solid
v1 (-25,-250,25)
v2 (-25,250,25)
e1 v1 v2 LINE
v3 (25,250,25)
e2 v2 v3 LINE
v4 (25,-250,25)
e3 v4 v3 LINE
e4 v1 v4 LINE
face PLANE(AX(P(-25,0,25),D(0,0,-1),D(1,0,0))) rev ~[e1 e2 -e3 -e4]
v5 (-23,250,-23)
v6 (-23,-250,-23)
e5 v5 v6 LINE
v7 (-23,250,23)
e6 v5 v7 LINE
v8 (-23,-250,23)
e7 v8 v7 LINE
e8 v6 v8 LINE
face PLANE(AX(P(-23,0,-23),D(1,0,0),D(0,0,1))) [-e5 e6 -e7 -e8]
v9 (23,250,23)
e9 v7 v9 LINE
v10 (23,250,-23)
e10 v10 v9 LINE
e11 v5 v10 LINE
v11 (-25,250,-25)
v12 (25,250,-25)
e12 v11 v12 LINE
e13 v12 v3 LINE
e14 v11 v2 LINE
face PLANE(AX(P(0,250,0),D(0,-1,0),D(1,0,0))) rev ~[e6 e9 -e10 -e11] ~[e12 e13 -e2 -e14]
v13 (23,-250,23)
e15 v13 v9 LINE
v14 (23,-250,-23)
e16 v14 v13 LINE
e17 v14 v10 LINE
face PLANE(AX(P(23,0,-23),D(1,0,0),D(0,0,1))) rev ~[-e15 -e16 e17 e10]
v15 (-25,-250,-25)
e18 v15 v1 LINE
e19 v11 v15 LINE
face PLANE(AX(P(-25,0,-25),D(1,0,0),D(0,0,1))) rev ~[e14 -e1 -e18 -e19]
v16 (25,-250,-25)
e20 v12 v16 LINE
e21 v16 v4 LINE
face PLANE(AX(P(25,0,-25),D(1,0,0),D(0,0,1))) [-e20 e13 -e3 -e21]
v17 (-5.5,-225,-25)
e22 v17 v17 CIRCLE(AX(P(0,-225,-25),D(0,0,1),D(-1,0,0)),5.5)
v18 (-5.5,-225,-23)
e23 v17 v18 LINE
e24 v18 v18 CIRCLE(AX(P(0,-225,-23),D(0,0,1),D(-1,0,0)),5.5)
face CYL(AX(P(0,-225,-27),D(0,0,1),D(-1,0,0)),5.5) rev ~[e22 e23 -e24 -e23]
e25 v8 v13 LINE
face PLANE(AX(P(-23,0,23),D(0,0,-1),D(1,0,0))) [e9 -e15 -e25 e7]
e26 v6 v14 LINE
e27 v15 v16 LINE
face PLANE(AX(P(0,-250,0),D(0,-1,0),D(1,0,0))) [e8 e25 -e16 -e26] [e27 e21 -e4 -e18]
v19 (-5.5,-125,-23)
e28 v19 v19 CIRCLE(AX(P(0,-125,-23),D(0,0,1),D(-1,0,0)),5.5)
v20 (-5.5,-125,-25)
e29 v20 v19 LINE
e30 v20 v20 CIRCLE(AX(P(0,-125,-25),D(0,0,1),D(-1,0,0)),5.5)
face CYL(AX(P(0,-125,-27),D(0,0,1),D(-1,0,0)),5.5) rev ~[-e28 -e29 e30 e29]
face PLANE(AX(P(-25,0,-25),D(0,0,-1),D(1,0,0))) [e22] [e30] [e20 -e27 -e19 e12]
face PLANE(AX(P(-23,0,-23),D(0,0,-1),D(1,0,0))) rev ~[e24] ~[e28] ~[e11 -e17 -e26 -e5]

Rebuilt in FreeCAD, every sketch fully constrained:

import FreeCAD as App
import Part
import Sketcher

V = App.Vector

doc = App.newDocument("Part")
body = doc.addObject("PartDesign::Body", "Body")

# Sketch on XZ plane
sketch1 = body.newObject("Sketcher::SketchObject", "Sketch")
sketch1.AttachmentSupport = (doc.getObject("XZ_Plane"), [""])
sketch1.MapMode = "FlatFace"
sketch1.addGeometry(Part.LineSegment(V(-25, 25, 0), V(-25, -25, 0)), False)
sketch1.addGeometry(Part.LineSegment(V(-25, -25, 0), V(25, -25, 0)), False)
sketch1.addGeometry(Part.LineSegment(V(25, -25, 0), V(25, 25, 0)), False)
sketch1.addGeometry(Part.LineSegment(V(25, 25, 0), V(-25, 25, 0)), False)
sketch1.addGeometry(Part.LineSegment(V(23, -23, 0), V(-23, -23, 0)), False)
sketch1.addGeometry(Part.LineSegment(V(-23, -23, 0), V(-23, 23, 0)), False)
sketch1.addGeometry(Part.LineSegment(V(-23, 23, 0), V(23, 23, 0)), False)
sketch1.addGeometry(Part.LineSegment(V(23, 23, 0), V(23, -23, 0)), False)
sketch1.addConstraint(Sketcher.Constraint("Coincident", 0, 2, 1, 1))
sketch1.addConstraint(Sketcher.Constraint("Coincident", 1, 2, 2, 1))
sketch1.addConstraint(Sketcher.Constraint("Coincident", 2, 2, 3, 1))
sketch1.addConstraint(Sketcher.Constraint("Coincident", 3, 2, 0, 1))
sketch1.addConstraint(Sketcher.Constraint("Coincident", 4, 2, 5, 1))
sketch1.addConstraint(Sketcher.Constraint("Coincident", 5, 2, 6, 1))
sketch1.addConstraint(Sketcher.Constraint("Coincident", 6, 2, 7, 1))
sketch1.addConstraint(Sketcher.Constraint("Coincident", 7, 2, 4, 1))
sketch1.addConstraint(Sketcher.Constraint("Vertical", 0))
sketch1.addConstraint(Sketcher.Constraint("Horizontal", 1))
sketch1.addConstraint(Sketcher.Constraint("Vertical", 2))
sketch1.addConstraint(Sketcher.Constraint("Horizontal", 3))
sketch1.addConstraint(Sketcher.Constraint("Horizontal", 4))
sketch1.addConstraint(Sketcher.Constraint("Vertical", 5))
sketch1.addConstraint(Sketcher.Constraint("Horizontal", 6))
sketch1.addConstraint(Sketcher.Constraint("Vertical", 7))
sketch1.addConstraint(Sketcher.Constraint("Symmetric", 0, 2, 2, 2, -1, 1))
sketch1.addConstraint(Sketcher.Constraint("Symmetric", 4, 2, 6, 2, -1, 1))
sketch1.addConstraint(Sketcher.Constraint("Equal", 3, 0))
sketch1.addConstraint(Sketcher.Constraint("Equal", 6, 5))
sketch1.addConstraint(Sketcher.Constraint("DistanceX", 1, 1, 1, 2, 50.0))
sketch1.addConstraint(Sketcher.Constraint("DistanceX", 4, 2, 4, 1, 46.0))
pad1 = body.newObject("PartDesign::Pad", "Pad")
pad1.Profile = sketch1
pad1.Length = 500
pad1.Midplane = True

# Sketch on XY plane
sketch2 = body.newObject("Sketcher::SketchObject", "Sketch001")
sketch2.AttachmentSupport = (doc.getObject("XY_Plane"), [""])
sketch2.MapMode = "FlatFace"
sketch2.AttachmentOffset = App.Placement(V(0, 0, -25), App.Rotation())
sketch2.addGeometry(Part.Circle(V(0, -225, 0), V(0, 0, 1), 5.5), False)
sketch2.addGeometry(Part.Circle(V(0, -125, 0), V(0, 0, 1), 5.5), False)
sketch2.addConstraint(Sketcher.Constraint("Equal", 0, 1))
sketch2.addConstraint(Sketcher.Constraint("PointOnObject", 0, 3, -2))
sketch2.addConstraint(Sketcher.Constraint("PointOnObject", 1, 3, -2))
sketch2.addConstraint(Sketcher.Constraint("Diameter", 0, 11.0))
sketch2.addConstraint(Sketcher.Constraint("DistanceY", 0, 3, -1, 1, 225.0))
sketch2.addConstraint(Sketcher.Constraint("DistanceY", 1, 3, -1, 1, 125.0))
doc.recompute()
hole = body.newObject("PartDesign::Hole", "Hole")
hole.Profile = sketch2
hole.ThreadType = "None"
hole.Diameter = 11
hole.DepthType = "Dimension"
hole.Depth = 2
hole.DrillPoint = "Angled"
hole.DrillPointAngle = 118
hole.Reversed = True

doc.recompute()
